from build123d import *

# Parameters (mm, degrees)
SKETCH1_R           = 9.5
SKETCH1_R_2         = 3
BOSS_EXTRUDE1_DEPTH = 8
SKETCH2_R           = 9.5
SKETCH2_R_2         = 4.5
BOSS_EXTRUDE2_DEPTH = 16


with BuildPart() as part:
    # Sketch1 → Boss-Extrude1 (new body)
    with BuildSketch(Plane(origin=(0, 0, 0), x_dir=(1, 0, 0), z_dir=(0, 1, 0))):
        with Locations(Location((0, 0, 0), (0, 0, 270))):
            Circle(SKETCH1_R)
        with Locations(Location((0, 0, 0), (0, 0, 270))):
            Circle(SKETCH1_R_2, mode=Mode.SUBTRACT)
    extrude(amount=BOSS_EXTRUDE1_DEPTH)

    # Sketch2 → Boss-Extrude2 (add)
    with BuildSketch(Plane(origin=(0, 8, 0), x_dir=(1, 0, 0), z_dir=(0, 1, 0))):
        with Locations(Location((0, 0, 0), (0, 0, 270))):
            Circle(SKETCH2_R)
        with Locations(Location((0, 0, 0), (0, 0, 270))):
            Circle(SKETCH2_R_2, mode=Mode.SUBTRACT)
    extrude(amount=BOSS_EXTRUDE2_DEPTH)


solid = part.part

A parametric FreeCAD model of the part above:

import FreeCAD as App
import Part
import Sketcher
Q = App.Units.Quantity

doc = App.newDocument("Part")
body = doc.addObject("PartDesign::Body", "Body")

# Sketch on XZ plane
sketch1 = body.newObject("Sketcher::SketchObject", "Sketch")
sketch1.AttachmentSupport = (doc.getObject("XZ_Plane"), [""])
sketch1.MapMode = "FlatFace"
sketch1.addGeometry([
    Part.Circle(App.Vector(0, 0, 0), App.Vector(0, 0, 1), 9.5),
    Part.Circle(App.Vector(0, 0, 0), App.Vector(0, 0, 1), 3),
], False)
sketch1.addConstraint([
    Sketcher.Constraint("Coincident", 0, 3, -1, 1),
    Sketcher.Constraint("Coincident", 1, 3, -1, 1),
    Sketcher.Constraint("Diameter", 0, Q("19 mm")),
    Sketcher.Constraint("Diameter", 1, Q("6 mm")),
])
pad1 = body.newObject("PartDesign::Pad", "Pad")
pad1.Profile = sketch1
pad1.Length = 8
pad1.Reversed = True

# Sketch on XZ plane
sketch2 = body.newObject("Sketcher::SketchObject", "Sketch001")
sketch2.AttachmentSupport = (doc.getObject("XZ_Plane"), [""])
sketch2.MapMode = "FlatFace"
sketch2.AttachmentOffset = App.Placement(App.Vector(0, 0, -8), App.Rotation())
sketch2.addGeometry([
    Part.Circle(App.Vector(0, 0, 0), App.Vector(0, 0, 1), 9.5),
    Part.Circle(App.Vector(0, 0, 0), App.Vector(0, 0, 1), 4.5),
], False)
sketch2.addConstraint([
    Sketcher.Constraint("Coincident", 0, 3, -1, 1),
    Sketcher.Constraint("Coincident", 1, 3, -1, 1),
    Sketcher.Constraint("Diameter", 0, Q("19 mm")),
    Sketcher.Constraint("Diameter", 1, Q("9 mm")),
])
pad2 = body.newObject("PartDesign::Pad", "Pad001")
pad2.Profile = sketch2
pad2.Length = 16
pad2.Reversed = True

doc.recompute()
